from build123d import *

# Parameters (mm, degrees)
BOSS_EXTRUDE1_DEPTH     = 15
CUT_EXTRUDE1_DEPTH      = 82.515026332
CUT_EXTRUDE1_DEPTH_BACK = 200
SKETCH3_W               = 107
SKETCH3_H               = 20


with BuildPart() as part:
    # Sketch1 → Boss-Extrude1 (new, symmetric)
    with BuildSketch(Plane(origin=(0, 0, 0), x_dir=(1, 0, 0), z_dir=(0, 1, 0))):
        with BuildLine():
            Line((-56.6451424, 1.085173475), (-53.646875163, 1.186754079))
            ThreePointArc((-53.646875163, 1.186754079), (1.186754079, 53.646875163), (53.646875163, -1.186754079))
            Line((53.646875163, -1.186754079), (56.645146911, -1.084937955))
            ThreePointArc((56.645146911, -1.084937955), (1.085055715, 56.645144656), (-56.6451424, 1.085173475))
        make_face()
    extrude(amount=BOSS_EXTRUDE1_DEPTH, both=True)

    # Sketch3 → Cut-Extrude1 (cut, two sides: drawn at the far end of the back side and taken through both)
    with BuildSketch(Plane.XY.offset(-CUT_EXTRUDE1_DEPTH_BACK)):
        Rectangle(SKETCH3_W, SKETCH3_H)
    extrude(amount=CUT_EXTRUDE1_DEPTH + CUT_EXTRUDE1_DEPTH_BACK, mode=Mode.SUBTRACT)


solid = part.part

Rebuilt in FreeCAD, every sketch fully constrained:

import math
import FreeCAD as App
import Part
import Sketcher

V = App.Vector
Q = App.Units.Quantity


def add_polygon(sketch, points):
    """Adds a closed chain of lines whose ends are joined by coincident constraints."""
    first, n = sketch.GeometryCount, len(points)
    for a, b in zip(points, points[1:] + points[:1]):
        sketch.addGeometry(Part.LineSegment(App.Vector(*a, 0), App.Vector(*b, 0)), False)
    for i in range(n):
        sketch.addConstraint(Sketcher.Constraint("Coincident", first + i, 2, first + (i + 1) % n, 1))

doc = App.newDocument("Part")
body = doc.addObject("PartDesign::Body", "Body")

# Sketch on XZ plane
sketch1 = body.newObject("Sketcher::SketchObject", "Sketch")
sketch1.AttachmentSupport = (doc.getObject("XZ_Plane"), [""])
sketch1.MapMode = "FlatFace"
sketch1.addGeometry([
    Part.LineSegment(V(-56.645142, -1.085173, 0), V(-53.646875, -1.186754, 0)),
    Part.ArcOfCircle(Part.Circle(V(0, 0, 0), V(0, 0, 1), 53.66), math.radians(-178.732733), math.radians(1.267267)),
    Part.LineSegment(V(53.646875, 1.186754, 0), V(56.645147, 1.084938, 0)),
    Part.ArcOfCircle(Part.Circle(V(0, 0, 0), V(0, 0, 1), 56.655536), math.radians(-178.902496), math.radians(1.097266)),
], False)
sketch1.addConstraint([
    Sketcher.Constraint("Coincident", 0, 2, 1, 1),
    Sketcher.Constraint("Coincident", 1, 2, 2, 1),
    Sketcher.Constraint("Coincident", 2, 2, 3, 2),
    Sketcher.Constraint("Coincident", 3, 1, 0, 1),
    Sketcher.Constraint("Coincident", 1, 3, -1, 1),
    Sketcher.Constraint("Coincident", 3, 3, -1, 1),
    Sketcher.Constraint("Radius", 1, Q("53.66 mm")),
    Sketcher.Constraint("Distance", 2, Q("3 mm")),
    Sketcher.Constraint("Radius", 3, Q("56.655536 mm")),
    Sketcher.Constraint("DistanceX", 0, 2, 1, 2, Q("107.29375 mm")),
    Sketcher.Constraint("DistanceY", 0, 2, 3, 1, Q("0.101581 mm")),
    Sketcher.Constraint("DistanceX", 0, 2, -1, 1, Q("53.646875 mm")),
])
pad1 = body.newObject("PartDesign::Pad", "Pad")
pad1.Profile = sketch1
pad1.Length = 30
pad1.Midplane = True

# Sketch on XY plane
sketch2 = body.newObject("Sketcher::SketchObject", "Sketch001")
sketch2.AttachmentSupport = (doc.getObject("XY_Plane"), [""])
sketch2.MapMode = "FlatFace"
add_polygon(sketch2, [(-53.5, 10), (-53.5, -10), (53.5, -10), (53.5, 10)])  # lines 0-3
sketch2.addConstraint([
    Sketcher.Constraint("Vertical", 0),
    Sketcher.Constraint("Horizontal", 1),
    Sketcher.Constraint("Vertical", 2),
    Sketcher.Constraint("Horizontal", 3),
    Sketcher.Constraint("Symmetric", 0, 2, 2, 2, -1, 1),
    Sketcher.Constraint("DistanceX", 1, 1, 1, 2, Q("107 mm")),
    Sketcher.Constraint("DistanceY", 0, 2, 0, 1, Q("20 mm")),
])
pocket1 = body.newObject("PartDesign::Pocket", "Pocket")
pocket1.Profile = sketch2
pocket1.Type = "ThroughAll"
pocket1.Midplane = True

doc.recompute()
